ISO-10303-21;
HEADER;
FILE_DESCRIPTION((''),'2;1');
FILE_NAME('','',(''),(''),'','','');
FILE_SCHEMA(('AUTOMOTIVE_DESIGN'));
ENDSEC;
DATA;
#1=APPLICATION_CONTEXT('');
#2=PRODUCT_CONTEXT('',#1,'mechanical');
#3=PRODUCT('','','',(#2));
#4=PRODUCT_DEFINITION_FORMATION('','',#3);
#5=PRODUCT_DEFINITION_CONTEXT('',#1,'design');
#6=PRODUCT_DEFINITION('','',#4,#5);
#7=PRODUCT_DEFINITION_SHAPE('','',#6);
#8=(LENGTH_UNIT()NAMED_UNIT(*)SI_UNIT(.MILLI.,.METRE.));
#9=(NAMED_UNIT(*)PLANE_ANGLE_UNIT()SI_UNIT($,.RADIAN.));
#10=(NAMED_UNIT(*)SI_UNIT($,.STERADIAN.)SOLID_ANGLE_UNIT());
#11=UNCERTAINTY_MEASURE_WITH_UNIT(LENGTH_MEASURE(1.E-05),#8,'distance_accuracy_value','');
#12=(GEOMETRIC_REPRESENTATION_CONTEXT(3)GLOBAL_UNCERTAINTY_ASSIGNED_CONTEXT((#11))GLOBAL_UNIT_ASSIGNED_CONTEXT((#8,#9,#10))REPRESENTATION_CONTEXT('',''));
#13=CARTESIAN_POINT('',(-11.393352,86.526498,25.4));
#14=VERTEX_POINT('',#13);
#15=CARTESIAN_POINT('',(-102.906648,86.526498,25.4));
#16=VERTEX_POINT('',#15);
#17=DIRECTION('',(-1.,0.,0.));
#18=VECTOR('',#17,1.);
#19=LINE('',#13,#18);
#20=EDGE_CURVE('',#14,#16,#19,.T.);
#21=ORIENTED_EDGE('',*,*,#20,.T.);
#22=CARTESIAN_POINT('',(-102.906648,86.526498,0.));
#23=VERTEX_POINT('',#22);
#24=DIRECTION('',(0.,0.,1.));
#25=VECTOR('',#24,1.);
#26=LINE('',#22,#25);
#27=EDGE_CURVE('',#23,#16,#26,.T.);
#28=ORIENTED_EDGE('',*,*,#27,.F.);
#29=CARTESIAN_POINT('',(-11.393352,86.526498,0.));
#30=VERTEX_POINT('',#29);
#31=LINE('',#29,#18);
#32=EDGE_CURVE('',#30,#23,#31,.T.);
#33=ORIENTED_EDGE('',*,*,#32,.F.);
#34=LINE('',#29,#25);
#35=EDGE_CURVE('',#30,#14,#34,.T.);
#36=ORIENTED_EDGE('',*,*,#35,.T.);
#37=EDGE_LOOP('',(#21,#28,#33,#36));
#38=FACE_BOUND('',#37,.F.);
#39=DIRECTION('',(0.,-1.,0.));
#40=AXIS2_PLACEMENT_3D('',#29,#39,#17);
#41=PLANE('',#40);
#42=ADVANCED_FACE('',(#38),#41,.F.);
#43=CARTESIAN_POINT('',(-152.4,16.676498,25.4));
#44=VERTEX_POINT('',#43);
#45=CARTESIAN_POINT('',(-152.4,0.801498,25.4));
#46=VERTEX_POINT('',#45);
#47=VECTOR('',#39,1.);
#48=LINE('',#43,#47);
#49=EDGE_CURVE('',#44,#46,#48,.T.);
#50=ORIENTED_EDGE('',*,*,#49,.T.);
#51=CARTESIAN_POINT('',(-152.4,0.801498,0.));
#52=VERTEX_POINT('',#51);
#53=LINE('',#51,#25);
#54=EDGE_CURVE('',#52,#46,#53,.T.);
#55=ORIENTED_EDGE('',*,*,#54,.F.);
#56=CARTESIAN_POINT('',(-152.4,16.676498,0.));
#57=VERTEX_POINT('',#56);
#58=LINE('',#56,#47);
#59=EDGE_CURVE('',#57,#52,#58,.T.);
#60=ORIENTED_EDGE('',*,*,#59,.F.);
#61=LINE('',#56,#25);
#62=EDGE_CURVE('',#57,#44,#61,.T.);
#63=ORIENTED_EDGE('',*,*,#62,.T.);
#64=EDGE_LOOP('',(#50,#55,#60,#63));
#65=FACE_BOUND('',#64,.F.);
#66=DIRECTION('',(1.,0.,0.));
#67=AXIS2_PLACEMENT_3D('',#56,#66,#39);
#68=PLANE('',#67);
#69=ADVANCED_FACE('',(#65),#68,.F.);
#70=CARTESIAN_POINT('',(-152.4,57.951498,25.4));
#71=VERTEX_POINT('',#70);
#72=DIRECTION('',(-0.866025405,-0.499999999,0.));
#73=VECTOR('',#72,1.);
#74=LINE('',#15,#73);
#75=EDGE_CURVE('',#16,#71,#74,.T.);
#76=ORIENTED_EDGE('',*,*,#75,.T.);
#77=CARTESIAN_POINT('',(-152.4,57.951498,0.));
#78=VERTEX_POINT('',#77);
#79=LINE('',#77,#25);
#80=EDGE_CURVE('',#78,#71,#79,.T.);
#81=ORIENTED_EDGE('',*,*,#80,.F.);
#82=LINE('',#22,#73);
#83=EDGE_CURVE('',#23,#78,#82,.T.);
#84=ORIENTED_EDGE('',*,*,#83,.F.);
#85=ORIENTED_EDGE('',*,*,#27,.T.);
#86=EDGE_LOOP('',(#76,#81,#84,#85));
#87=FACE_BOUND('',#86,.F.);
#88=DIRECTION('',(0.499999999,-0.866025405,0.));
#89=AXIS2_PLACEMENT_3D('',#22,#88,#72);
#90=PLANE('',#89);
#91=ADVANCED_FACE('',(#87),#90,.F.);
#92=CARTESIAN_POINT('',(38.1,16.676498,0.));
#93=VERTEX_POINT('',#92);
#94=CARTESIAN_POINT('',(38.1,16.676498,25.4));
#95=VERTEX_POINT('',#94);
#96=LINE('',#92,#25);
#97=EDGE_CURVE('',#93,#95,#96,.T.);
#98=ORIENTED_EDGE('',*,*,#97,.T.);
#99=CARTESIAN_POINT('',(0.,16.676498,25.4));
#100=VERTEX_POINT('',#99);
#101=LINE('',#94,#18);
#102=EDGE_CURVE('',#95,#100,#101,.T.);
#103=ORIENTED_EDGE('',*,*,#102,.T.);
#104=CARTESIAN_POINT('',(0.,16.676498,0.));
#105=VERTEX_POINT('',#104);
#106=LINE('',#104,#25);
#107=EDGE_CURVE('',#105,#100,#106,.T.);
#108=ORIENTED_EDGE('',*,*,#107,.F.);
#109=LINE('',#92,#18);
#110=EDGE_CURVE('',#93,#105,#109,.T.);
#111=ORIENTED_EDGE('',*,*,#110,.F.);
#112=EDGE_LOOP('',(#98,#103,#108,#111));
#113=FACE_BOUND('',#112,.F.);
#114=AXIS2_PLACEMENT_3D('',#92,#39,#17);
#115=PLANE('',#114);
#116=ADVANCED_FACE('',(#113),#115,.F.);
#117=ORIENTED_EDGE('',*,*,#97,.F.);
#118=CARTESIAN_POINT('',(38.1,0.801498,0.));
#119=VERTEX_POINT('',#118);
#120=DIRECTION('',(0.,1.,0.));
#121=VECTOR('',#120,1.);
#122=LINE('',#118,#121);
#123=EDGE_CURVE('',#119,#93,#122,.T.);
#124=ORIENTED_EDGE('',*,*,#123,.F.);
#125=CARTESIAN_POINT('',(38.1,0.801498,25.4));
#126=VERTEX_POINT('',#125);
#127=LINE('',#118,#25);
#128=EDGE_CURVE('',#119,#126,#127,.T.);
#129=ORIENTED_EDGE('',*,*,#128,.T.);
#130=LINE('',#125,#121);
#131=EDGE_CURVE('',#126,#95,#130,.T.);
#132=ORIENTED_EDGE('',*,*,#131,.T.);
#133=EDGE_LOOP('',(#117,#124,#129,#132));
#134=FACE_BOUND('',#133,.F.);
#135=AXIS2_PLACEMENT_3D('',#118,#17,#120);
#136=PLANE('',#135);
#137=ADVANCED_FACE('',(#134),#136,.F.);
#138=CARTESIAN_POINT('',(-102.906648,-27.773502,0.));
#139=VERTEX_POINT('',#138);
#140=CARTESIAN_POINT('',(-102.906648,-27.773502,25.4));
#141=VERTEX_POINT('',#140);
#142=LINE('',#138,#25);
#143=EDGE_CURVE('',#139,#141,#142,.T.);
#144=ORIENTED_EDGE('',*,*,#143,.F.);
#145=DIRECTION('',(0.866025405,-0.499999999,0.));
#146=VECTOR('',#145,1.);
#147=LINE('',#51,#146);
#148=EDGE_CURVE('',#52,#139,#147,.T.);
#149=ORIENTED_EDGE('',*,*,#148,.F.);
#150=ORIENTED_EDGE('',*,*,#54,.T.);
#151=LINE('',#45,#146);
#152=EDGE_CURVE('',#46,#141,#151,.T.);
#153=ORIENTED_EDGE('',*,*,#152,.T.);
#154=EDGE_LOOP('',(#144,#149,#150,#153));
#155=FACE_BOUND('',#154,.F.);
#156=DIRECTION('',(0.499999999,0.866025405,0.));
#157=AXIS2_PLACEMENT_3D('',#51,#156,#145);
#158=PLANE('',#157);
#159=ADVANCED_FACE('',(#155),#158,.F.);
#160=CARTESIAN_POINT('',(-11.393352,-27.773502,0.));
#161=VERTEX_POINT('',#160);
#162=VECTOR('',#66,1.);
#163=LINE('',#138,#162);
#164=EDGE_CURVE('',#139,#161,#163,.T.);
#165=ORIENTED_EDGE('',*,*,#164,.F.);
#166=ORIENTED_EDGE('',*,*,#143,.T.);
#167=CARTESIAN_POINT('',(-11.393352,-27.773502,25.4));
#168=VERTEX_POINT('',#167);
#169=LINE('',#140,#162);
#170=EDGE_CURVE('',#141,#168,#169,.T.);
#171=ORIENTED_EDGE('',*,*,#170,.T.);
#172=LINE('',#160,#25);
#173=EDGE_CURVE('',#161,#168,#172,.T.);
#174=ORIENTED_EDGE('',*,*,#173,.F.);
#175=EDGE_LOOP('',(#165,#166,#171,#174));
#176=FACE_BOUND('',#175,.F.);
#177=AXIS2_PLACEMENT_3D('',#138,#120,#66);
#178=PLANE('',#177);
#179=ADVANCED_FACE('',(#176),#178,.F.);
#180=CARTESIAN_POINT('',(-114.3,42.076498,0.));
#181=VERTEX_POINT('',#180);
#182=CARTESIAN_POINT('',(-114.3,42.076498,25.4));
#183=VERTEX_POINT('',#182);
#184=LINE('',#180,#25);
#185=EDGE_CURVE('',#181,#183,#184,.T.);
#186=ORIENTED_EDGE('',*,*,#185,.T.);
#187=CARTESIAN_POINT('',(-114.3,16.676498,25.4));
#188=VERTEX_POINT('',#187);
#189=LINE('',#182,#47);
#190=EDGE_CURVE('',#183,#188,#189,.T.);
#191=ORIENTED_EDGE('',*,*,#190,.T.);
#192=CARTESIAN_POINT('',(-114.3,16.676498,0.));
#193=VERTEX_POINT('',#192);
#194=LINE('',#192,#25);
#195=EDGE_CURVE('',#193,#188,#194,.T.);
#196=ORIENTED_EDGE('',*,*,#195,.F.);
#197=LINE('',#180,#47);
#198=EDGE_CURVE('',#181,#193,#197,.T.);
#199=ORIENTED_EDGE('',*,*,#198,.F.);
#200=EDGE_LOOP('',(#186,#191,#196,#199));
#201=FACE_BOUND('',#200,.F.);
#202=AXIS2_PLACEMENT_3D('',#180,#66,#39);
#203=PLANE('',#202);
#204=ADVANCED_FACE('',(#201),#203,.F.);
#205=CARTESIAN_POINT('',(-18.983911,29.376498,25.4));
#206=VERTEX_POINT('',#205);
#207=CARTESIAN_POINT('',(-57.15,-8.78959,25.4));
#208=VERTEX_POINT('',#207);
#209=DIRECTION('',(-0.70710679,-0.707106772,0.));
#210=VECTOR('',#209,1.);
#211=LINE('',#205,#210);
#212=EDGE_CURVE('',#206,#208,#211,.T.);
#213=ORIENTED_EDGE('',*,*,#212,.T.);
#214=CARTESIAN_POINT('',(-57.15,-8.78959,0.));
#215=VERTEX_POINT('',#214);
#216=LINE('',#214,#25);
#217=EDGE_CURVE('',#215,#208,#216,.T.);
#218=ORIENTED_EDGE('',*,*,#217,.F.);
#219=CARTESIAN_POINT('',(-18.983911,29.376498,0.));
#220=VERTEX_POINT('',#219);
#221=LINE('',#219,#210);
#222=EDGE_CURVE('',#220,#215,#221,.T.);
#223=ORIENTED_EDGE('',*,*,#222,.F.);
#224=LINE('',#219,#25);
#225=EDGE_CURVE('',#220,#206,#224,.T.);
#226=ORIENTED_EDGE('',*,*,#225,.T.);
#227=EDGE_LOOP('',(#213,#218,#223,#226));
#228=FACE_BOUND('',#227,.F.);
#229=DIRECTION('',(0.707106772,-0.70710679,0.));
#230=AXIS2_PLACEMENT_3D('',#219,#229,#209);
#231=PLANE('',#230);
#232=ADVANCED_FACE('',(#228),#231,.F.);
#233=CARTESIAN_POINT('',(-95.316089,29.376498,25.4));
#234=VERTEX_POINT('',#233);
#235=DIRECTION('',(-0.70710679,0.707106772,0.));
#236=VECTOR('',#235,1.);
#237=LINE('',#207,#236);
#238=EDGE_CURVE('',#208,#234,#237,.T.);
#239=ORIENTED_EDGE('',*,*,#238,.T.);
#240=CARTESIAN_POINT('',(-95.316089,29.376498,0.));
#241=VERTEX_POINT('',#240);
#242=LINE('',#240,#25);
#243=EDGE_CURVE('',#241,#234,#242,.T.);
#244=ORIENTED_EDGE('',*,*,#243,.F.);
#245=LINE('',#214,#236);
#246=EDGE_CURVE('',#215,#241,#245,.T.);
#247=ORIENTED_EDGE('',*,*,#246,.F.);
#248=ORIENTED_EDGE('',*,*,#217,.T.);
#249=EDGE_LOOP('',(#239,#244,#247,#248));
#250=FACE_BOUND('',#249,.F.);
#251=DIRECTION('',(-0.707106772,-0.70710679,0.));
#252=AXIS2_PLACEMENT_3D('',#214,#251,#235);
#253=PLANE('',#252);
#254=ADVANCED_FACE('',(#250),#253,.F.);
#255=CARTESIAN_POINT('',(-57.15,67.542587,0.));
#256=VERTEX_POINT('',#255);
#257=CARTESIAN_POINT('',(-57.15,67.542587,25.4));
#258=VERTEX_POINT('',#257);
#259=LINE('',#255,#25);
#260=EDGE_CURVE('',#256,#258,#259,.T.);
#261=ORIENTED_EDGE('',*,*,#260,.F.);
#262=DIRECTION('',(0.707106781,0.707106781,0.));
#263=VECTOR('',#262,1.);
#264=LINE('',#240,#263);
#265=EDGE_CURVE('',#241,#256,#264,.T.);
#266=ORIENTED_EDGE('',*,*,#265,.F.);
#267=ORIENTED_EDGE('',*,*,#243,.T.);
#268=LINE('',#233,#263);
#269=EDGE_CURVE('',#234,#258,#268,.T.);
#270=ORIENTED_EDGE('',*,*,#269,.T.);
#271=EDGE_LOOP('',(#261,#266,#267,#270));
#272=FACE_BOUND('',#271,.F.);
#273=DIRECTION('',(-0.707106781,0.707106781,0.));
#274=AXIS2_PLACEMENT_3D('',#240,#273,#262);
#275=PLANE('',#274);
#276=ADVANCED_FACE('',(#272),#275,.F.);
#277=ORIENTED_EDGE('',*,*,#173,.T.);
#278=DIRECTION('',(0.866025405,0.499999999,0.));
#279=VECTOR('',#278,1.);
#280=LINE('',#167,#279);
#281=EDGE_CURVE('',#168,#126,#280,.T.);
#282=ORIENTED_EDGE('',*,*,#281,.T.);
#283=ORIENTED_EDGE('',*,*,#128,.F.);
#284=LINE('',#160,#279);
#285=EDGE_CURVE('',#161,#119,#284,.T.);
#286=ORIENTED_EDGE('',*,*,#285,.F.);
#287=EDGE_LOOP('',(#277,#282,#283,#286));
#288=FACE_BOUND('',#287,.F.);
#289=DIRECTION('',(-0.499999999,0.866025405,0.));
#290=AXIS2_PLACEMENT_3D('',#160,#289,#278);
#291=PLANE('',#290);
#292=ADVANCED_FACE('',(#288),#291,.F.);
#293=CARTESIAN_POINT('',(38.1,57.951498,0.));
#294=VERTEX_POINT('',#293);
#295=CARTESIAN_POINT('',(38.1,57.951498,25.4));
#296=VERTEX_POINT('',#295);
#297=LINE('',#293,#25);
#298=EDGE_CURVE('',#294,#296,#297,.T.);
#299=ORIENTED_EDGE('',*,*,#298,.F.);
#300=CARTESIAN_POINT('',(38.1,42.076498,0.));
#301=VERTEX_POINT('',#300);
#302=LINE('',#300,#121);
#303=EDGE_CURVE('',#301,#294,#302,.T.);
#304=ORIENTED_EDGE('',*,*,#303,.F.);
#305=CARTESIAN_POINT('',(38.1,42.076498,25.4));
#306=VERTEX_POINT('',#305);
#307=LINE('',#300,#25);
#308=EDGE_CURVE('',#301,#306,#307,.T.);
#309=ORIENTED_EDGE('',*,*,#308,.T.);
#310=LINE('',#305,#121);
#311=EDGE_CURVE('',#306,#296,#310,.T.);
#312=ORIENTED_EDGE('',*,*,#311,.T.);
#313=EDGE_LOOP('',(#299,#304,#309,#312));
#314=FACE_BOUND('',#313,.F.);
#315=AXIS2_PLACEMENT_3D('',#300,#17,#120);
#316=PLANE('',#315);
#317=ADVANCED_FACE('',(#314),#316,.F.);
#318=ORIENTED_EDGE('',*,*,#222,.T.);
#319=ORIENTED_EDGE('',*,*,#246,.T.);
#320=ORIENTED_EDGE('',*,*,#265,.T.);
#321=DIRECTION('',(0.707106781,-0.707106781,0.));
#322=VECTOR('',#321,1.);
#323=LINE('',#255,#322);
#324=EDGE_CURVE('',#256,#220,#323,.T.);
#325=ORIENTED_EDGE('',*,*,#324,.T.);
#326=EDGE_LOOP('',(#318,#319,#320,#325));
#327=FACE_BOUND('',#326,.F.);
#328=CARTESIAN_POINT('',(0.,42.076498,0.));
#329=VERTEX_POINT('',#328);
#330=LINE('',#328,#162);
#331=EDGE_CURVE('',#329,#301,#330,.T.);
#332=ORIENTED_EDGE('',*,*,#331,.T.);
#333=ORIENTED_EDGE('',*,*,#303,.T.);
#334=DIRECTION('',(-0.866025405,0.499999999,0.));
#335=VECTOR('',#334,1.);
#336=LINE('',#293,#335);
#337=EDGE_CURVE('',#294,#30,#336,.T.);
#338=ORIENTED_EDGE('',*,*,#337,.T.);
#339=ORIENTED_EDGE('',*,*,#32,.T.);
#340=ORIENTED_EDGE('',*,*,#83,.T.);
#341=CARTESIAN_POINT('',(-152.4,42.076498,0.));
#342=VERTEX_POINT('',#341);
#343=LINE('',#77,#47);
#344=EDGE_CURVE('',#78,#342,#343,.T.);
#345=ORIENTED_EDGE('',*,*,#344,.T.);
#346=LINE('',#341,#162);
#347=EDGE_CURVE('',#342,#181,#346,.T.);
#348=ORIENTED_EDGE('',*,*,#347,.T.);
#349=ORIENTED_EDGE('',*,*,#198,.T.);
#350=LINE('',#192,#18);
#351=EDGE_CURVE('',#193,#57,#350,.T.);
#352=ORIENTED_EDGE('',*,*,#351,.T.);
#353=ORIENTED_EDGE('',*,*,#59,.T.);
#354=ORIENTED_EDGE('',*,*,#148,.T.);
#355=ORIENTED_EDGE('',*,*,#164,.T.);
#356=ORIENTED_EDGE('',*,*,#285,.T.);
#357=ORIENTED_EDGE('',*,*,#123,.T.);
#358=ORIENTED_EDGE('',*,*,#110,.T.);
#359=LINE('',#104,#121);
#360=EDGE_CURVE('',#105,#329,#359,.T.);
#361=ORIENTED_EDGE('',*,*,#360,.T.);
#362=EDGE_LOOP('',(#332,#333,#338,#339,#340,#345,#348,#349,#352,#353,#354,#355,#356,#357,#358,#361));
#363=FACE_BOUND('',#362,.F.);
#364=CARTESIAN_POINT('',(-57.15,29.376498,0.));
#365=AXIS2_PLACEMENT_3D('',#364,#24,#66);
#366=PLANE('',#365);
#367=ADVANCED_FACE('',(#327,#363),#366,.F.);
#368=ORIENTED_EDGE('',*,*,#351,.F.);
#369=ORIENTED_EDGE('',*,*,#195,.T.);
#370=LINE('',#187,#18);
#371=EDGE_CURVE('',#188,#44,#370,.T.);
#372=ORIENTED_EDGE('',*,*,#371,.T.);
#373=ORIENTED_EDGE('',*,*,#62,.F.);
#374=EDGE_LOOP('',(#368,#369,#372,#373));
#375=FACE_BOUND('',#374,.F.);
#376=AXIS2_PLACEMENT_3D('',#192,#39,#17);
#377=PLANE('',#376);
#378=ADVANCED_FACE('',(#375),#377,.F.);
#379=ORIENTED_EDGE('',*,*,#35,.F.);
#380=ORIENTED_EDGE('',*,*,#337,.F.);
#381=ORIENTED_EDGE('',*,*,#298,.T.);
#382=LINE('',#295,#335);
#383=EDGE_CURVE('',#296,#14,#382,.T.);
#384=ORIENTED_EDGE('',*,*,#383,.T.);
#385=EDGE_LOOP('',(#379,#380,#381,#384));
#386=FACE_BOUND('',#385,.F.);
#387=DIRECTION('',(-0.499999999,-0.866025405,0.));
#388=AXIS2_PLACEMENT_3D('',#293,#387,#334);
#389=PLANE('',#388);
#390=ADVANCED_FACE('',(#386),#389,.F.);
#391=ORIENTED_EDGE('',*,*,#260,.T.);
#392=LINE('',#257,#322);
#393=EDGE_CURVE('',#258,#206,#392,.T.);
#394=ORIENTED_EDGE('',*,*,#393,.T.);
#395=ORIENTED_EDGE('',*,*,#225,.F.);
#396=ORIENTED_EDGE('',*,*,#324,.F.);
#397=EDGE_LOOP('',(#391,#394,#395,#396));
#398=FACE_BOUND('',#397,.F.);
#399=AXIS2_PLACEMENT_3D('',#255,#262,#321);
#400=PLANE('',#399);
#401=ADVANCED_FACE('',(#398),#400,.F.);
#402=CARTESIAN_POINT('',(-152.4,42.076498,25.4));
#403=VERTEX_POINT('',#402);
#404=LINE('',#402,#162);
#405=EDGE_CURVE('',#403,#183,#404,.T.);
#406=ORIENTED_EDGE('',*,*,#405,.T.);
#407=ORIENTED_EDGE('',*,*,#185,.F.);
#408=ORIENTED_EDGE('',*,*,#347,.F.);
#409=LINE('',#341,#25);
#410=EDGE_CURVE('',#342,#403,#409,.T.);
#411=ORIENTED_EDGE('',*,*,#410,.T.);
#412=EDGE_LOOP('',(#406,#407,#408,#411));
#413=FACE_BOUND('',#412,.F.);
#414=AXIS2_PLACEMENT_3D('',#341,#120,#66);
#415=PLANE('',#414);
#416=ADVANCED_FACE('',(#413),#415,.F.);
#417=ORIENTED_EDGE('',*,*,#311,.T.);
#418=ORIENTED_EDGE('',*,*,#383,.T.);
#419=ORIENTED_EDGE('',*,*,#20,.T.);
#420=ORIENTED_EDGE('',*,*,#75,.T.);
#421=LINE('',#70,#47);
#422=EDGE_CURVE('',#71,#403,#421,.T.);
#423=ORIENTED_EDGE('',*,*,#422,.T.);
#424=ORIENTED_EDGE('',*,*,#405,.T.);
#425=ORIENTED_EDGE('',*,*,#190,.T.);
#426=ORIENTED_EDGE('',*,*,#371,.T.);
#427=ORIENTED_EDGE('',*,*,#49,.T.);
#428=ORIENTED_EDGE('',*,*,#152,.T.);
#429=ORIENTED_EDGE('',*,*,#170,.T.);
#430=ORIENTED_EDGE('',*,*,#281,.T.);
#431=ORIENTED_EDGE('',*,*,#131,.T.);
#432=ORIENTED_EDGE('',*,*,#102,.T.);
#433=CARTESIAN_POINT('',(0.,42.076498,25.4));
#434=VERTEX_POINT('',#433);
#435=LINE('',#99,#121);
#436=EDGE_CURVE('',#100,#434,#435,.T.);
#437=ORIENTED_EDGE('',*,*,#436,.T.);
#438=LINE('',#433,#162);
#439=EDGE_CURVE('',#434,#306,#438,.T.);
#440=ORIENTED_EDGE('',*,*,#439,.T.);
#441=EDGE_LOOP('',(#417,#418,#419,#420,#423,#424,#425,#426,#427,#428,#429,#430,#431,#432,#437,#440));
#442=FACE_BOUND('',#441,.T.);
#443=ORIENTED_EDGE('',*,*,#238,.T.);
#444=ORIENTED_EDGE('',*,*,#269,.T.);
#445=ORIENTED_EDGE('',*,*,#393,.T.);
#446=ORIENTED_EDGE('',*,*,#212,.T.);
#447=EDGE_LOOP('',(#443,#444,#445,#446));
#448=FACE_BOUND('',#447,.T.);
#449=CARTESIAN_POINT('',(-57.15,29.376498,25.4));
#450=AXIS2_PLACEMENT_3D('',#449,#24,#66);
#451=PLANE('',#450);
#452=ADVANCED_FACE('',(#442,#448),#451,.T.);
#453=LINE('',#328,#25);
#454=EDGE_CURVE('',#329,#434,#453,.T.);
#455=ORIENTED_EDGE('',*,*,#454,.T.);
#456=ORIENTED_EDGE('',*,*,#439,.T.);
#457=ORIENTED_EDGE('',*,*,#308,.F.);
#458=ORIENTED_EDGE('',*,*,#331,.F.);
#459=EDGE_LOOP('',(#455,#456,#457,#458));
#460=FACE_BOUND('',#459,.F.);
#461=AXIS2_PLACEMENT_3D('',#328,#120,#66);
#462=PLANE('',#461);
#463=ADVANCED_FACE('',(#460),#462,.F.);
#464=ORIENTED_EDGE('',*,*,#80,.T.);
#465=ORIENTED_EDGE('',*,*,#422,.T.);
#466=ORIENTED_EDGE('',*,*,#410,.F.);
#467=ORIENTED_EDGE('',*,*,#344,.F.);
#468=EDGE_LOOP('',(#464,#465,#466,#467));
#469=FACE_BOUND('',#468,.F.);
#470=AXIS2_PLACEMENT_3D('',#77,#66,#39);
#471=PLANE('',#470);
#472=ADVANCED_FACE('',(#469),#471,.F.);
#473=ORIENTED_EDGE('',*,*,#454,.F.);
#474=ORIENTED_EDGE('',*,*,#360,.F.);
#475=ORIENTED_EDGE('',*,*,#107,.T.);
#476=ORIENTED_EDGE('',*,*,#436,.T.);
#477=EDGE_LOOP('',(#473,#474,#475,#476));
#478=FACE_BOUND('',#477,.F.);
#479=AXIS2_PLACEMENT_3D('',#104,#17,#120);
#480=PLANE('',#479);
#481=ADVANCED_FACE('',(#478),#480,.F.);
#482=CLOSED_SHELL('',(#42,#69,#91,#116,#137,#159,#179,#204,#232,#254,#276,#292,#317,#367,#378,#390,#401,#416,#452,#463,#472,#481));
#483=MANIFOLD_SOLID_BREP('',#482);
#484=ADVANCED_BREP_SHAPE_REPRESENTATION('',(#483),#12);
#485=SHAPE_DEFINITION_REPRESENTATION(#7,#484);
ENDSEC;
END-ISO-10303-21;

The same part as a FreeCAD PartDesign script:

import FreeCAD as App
import Part
import Sketcher
from FreeCAD import Vector
Q = App.Units.Quantity


def add_polygon(sketch, points):
    """Adds a closed chain of lines whose ends are joined by coincident constraints."""
    first, n = sketch.GeometryCount, len(points)
    for a, b in zip(points, points[1:] + points[:1]):
        sketch.addGeometry(Part.LineSegment(App.Vector(*a, 0), App.Vector(*b, 0)), False)
    for i in range(n):
        sketch.addConstraint(Sketcher.Constraint("Coincident", first + i, 2, first + (i + 1) % n, 1))

doc = App.newDocument("Part")
params = doc.addObject("Spreadsheet::Sheet", "Params")
for row, (alias, value) in enumerate([
    ("sketch1_height", "1 in"),
    ("sketch1_width", "1.5 in"),
    ("sketch1_length", "2.25 in"),
    ("sketch1_height2", "0.625 in"),
    ("sketch1_length2", "2.125 in"),
    ("pad1_length", "1 in"),
], start=1):
    params.set(f"A{row}", alias)
    params.set(f"B{row}", "=" + value)
    params.setAlias(f"B{row}", alias)

body = doc.addObject("PartDesign::Body", "Body")

sketch1 = body.newObject("Sketcher::SketchObject", "Sketch")
sketch1.AttachmentSupport = (doc.getObject("XY_Plane"), [""])
sketch1.MapMode = "FlatFace"
add_polygon(sketch1, [(0, 17), (0, 42), (38, 42), (38, 58), (-11, 87), (-103, 87), (-152, 58), (-152, 42), (-114, 42), (-114, 17), (-152, 17), (-152, 1), (-103, -28), (-11, -28), (38, 1), (38, 17)])
add_polygon(sketch1, [(-19, 29), (-57, -9), (-95, 29), (-57, 68)])
sketch1.addConstraint([
    Sketcher.Constraint("Vertical", 0),
    Sketcher.Constraint("Horizontal", 1),
    Sketcher.Constraint("Vertical", 2),
    Sketcher.Constraint("Horizontal", 4),
    Sketcher.Constraint("Vertical", 6),
    Sketcher.Constraint("Horizontal", 7),
    Sketcher.Constraint("Vertical", 8),
    Sketcher.Constraint("Horizontal", 9),
    Sketcher.Constraint("Vertical", 10),
    Sketcher.Constraint("Horizontal", 12),
    Sketcher.Constraint("Vertical", 14),
    Sketcher.Constraint("Horizontal", 15),
    Sketcher.Constraint("PointOnObject", 0, 2, -2),
    Sketcher.Constraint("Parallel", 3, 11),
    Sketcher.Constraint("Parallel", 5, 13),
    Sketcher.Constraint("Perpendicular", 16, 17),
    Sketcher.Constraint("Perpendicular", 17, 18),
    Sketcher.Constraint("Perpendicular", 18, 19),
    Sketcher.Constraint("Horizontal", 2, 2, 5, 2),
    Sketcher.Constraint("Horizontal", 1, 2, 6, 2),
    Sketcher.Constraint("Horizontal", 10, 2, 13, 2),
    Sketcher.Constraint("Horizontal", 9, 2, 14, 2),
    Sketcher.Constraint("Horizontal", 17, 2, 19, 2),
    Sketcher.Constraint("Vertical", 6, 2, 9, 2),
    Sketcher.Constraint("Vertical", 4, 2, 11, 2),
    Sketcher.Constraint("Vertical", 3, 2, 12, 2),
    Sketcher.Constraint("Vertical", 2, 2, 13, 2),
    Sketcher.Constraint("Vertical", 16, 2, 18, 2),
    Sketcher.Constraint("Equal", 1, 7),
    Sketcher.Constraint("Equal", 6, 10),
    Sketcher.Constraint("DistanceY", 0, 1, 0, 2, Q("1 in")),
    Sketcher.Constraint("DistanceX", 1, 1, 1, 2, Q("1.5 in")),
    Sketcher.Constraint("DistanceX", 5, 2, -1, 1, Q("6 in")),
    Sketcher.Constraint("Angle", 3, Q("150 deg")),
    Sketcher.Constraint("DistanceY", 17, 2, 7, 2, Q("0.5 in")),
    Sketcher.Constraint("Distance", 3, Q("2.25 in")),
    Sketcher.Constraint("DistanceY", 2, 1, 2, 2, Q("0.625 in")),
    Sketcher.Constraint("DistanceX", 16, 2, -1, 1, Q("2.25 in")),
    Sketcher.Constraint("Distance", 16, Q("2.125 in")),
    Sketcher.Constraint("DistanceY", -1, 1, 3, 2, Q("86.526498 mm")),
])
sketch1.setExpression("Constraints[50]", "Params.sketch1_height")
sketch1.setExpression("Constraints[51]", "Params.sketch1_width")
sketch1.setExpression("Constraints[55]", "Params.sketch1_length")
sketch1.setExpression("Constraints[56]", "Params.sketch1_height2")
sketch1.setExpression("Constraints[58]", "Params.sketch1_length2")
pad1 = body.newObject("PartDesign::Pad", "Pad")
pad1.Profile = sketch1
pad1.setExpression("Length", "Params.pad1_length")

doc.recompute()
